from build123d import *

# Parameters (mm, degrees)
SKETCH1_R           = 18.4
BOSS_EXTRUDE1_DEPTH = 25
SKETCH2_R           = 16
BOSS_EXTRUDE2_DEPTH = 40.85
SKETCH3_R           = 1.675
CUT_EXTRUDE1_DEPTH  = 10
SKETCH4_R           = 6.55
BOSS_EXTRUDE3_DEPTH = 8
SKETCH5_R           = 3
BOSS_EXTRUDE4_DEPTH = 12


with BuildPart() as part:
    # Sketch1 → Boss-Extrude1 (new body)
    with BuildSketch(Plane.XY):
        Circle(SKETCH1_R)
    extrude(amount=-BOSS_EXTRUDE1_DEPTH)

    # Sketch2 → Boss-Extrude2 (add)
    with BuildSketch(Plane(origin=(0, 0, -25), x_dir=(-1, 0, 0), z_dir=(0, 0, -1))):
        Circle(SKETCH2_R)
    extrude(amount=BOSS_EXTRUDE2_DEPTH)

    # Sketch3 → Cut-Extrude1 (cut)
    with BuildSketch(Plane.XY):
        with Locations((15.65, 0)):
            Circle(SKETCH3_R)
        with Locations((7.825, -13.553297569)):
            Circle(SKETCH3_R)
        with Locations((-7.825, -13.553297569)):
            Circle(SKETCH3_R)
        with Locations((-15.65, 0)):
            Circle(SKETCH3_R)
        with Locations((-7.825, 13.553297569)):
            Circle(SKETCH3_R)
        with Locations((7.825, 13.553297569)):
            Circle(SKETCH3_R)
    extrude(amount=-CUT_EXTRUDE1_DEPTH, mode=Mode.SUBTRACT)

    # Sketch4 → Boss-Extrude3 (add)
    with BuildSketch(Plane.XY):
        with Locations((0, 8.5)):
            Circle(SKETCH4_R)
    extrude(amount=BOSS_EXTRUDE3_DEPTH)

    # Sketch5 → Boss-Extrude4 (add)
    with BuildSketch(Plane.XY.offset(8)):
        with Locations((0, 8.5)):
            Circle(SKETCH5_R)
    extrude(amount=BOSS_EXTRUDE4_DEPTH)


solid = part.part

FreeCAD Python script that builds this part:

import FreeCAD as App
import Part
import Sketcher
from FreeCAD import Vector
Q = App.Units.Quantity

doc = App.newDocument("Part")
body = doc.addObject("PartDesign::Body", "Body")

# Sketch on XY plane
sketch1 = doc.addObject("Sketcher::SketchObject", "Sketch")
body.addObject(sketch1)
sketch1.AttachmentSupport = (doc.XY_Plane, [""])
sketch1.MapMode = "FlatFace"
sketch1.addGeometry(Part.Circle(Vector(0, 0, 0), Vector(0, 0, 1), 18), False)
sketch1.addConstraint(Sketcher.Constraint("Coincident", 0, 3, -1, 1))
sketch1.addConstraint(Sketcher.Constraint("Diameter", 0, Q("36.8 mm")))
pad1 = doc.addObject("PartDesign::Pad", "Pad")
body.addObject(pad1)
pad1.Profile = sketch1
pad1.Length = 25
pad1.Reversed = True

# Sketch on XY plane
sketch2 = doc.addObject("Sketcher::SketchObject", "Sketch001")
body.addObject(sketch2)
sketch2.AttachmentSupport = (doc.XY_Plane, [""])
sketch2.MapMode = "FlatFace"
sketch2.AttachmentOffset = App.Placement(Vector(0, 0, -25), App.Rotation())
sketch2.addGeometry(Part.Circle(Vector(0, 0, 0), Vector(0, 0, 1), 16), False)
sketch2.addConstraint(Sketcher.Constraint("Coincident", 0, 3, -1, 1))
sketch2.addConstraint(Sketcher.Constraint("Diameter", 0, Q("32 mm")))
pad2 = doc.addObject("PartDesign::Pad", "Pad001")
body.addObject(pad2)
pad2.Profile = sketch2
pad2.Length = 40.85
pad2.Reversed = True

# Sketch on XY plane
sketch3 = doc.addObject("Sketcher::SketchObject", "Sketch002")
body.addObject(sketch3)
sketch3.AttachmentSupport = (doc.XY_Plane, [""])
sketch3.MapMode = "FlatFace"
sketch3.addGeometry(Part.Circle(Vector(15.7, 0, 0), Vector(0, 0, 1), 1.7), False)
sketch3.addGeometry(Part.Circle(Vector(7.8, -13.6, 0), Vector(0, 0, 1), 1.7), False)
sketch3.addGeometry(Part.Circle(Vector(-7.8, -13.6, 0), Vector(0, 0, 1), 1.7), False)
sketch3.addGeometry(Part.Circle(Vector(-15.7, 0, 0), Vector(0, 0, 1), 1.7), False)
sketch3.addGeometry(Part.Circle(Vector(-7.8, 13.6, 0), Vector(0, 0, 1), 1.7), False)
sketch3.addGeometry(Part.Circle(Vector(7.8, 13.6, 0), Vector(0, 0, 1), 1.7), False)
sketch3.addConstraint(Sketcher.Constraint("Equal", 0, 1))
sketch3.addConstraint(Sketcher.Constraint("Equal", 1, 2))
sketch3.addConstraint(Sketcher.Constraint("Equal", 2, 3))
sketch3.addConstraint(Sketcher.Constraint("Equal", 3, 4))
sketch3.addConstraint(Sketcher.Constraint("Equal", 4, 5))
sketch3.addConstraint(Sketcher.Constraint("Symmetric", 0, 3, 3, 3, -1, 1))
sketch3.addConstraint(Sketcher.Constraint("Symmetric", 1, 3, 4, 3, -1, 1))
sketch3.addConstraint(Sketcher.Constraint("Symmetric", 2, 3, 5, 3, -1, 1))
sketch3.addConstraint(Sketcher.Constraint("Symmetric", 1, 3, 2, 3, -2))
sketch3.addConstraint(Sketcher.Constraint("PointOnObject", 0, 3, -1))
sketch3.addConstraint(Sketcher.Constraint("Diameter", 0, Q("3.35 mm")))
sketch3.addConstraint(Sketcher.Constraint("DistanceX", 3, 3, 0, 3, Q("31.3 mm")))
sketch3.addConstraint(Sketcher.Constraint("DistanceX", 2, 3, 1, 3, Q("15.65 mm")))
sketch3.addConstraint(Sketcher.Constraint("DistanceY", 1, 3, -1, 1, Q("13.553298 mm")))
pocket1 = doc.addObject("PartDesign::Pocket", "Pocket")
body.addObject(pocket1)
pocket1.Profile = sketch3
pocket1.Length = 10

# Sketch on XY plane
sketch4 = doc.addObject("Sketcher::SketchObject", "Sketch003")
body.addObject(sketch4)
sketch4.AttachmentSupport = (doc.XY_Plane, [""])
sketch4.MapMode = "FlatFace"
sketch4.addGeometry(Part.Circle(Vector(0, 8, 0), Vector(0, 0, 1), 7), False)
sketch4.addConstraint(Sketcher.Constraint("PointOnObject", 0, 3, -2))
sketch4.addConstraint(Sketcher.Constraint("Diameter", 0, Q("13.1 mm")))
sketch4.addConstraint(Sketcher.Constraint("DistanceY", -1, 1, 0, 3, Q("8.5 mm")))
pad3 = doc.addObject("PartDesign::Pad", "Pad002")
body.addObject(pad3)
pad3.Profile = sketch4
pad3.Length = 8

# Sketch on XY plane
sketch5 = doc.addObject("Sketcher::SketchObject", "Sketch004")
body.addObject(sketch5)
sketch5.AttachmentSupport = (doc.XY_Plane, [""])
sketch5.MapMode = "FlatFace"
sketch5.AttachmentOffset = App.Placement(Vector(0, 0, 8), App.Rotation())
sketch5.addGeometry(Part.Circle(Vector(0, 8.5, 0), Vector(0, 0, 1), 3), False)
sketch5.addConstraint(Sketcher.Constraint("PointOnObject", 0, 3, -2))
sketch5.addConstraint(Sketcher.Constraint("Diameter", 0, Q("6 mm")))
sketch5.addConstraint(Sketcher.Constraint("DistanceY", -1, 1, 0, 3, Q("8.5 mm")))
pad4 = doc.addObject("PartDesign::Pad", "Pad003")
body.addObject(pad4)
pad4.Profile = sketch5
pad4.Length = 12

doc.recompute()
